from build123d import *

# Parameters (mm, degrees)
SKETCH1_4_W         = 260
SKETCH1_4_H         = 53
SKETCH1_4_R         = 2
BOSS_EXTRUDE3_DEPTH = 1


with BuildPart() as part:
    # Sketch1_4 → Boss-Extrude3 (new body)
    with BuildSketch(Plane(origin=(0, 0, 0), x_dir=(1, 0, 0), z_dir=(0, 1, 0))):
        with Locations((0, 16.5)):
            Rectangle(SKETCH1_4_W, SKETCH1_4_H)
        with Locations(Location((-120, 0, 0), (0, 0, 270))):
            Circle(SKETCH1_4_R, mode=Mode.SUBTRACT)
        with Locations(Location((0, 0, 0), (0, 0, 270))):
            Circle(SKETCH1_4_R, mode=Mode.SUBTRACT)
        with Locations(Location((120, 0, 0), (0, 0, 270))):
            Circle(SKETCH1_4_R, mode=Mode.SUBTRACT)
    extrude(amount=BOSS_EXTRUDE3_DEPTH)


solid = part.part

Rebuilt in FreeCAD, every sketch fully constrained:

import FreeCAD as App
import Part
import Sketcher
from FreeCAD import Vector


def add_polygon(sketch, points):
    """Adds a closed chain of lines whose ends are joined by coincident constraints."""
    first, n = sketch.GeometryCount, len(points)
    for a, b in zip(points, points[1:] + points[:1]):
        sketch.addGeometry(Part.LineSegment(App.Vector(*a, 0), App.Vector(*b, 0)), False)
    for i in range(n):
        sketch.addConstraint(Sketcher.Constraint("Coincident", first + i, 2, first + (i + 1) % n, 1))

doc = App.newDocument("Part")
params = doc.addObject("Spreadsheet::Sheet", "Params")
for row, (alias, value) in enumerate([
    ("sketch1_diameter", "4 mm"),
    ("sketch1_width", "260 mm"),
    ("sketch1_height", "53 mm"),
    ("pad1_length", "1 mm"),
], start=1):
    params.set(f"A{row}", alias)
    params.set(f"B{row}", "=" + value)
    params.setAlias(f"B{row}", alias)

body = doc.addObject("PartDesign::Body", "Body")

sketch1 = doc.addObject("Sketcher::SketchObject", "Sketch")
body.addObject(sketch1)
sketch1.AttachmentSupport = (doc.XZ_Plane, [""])
sketch1.MapMode = "FlatFace"
add_polygon(sketch1, [(-130, -43), (-130, 10), (130, 10), (130, -43)])
sketch1.addGeometry(Part.Circle(Vector(-120, 0, 0), Vector(0, 0, 1), 2), False)
sketch1.addGeometry(Part.Circle(Vector(0, 0, 0), Vector(0, 0, 1), 2), False)
sketch1.addGeometry(Part.Circle(Vector(120, 0, 0), Vector(0, 0, 1), 2), False)
sketch1.addConstraint(Sketcher.Constraint("Vertical", 0))
sketch1.addConstraint(Sketcher.Constraint("Horizontal", 1))
sketch1.addConstraint(Sketcher.Constraint("Vertical", 2))
sketch1.addConstraint(Sketcher.Constraint("Horizontal", 3))
sketch1.addConstraint(Sketcher.Constraint("Coincident", 5, 3, -1, 1))
sketch1.addConstraint(Sketcher.Constraint("Equal", 4, 5))
sketch1.addConstraint(Sketcher.Constraint("Equal", 5, 6))
sketch1.addConstraint(Sketcher.Constraint("Symmetric", 4, 3, 6, 3, -1, 1))
sketch1.addConstraint(Sketcher.Constraint("PointOnObject", 4, 3, -1))
sketch1.addConstraint(Sketcher.Constraint("Diameter", 4, 4.0))
sketch1.addConstraint(Sketcher.Constraint("DistanceX", 1, 1, 1, 2, 260.0))
sketch1.addConstraint(Sketcher.Constraint("DistanceY", 0, 1, 0, 2, 53.0))
sketch1.addConstraint(Sketcher.Constraint("DistanceX", 4, 3, -1, 1, 120.0))
sketch1.addConstraint(Sketcher.Constraint("DistanceX", 0, 2, -1, 1, 130.0))
sketch1.addConstraint(Sketcher.Constraint("DistanceY", -1, 1, 0, 2, 10.0))
sketch1.setExpression("Constraints[13]", "Params.sketch1_diameter")
sketch1.setExpression("Constraints[14]", "Params.sketch1_width")
sketch1.setExpression("Constraints[15]", "Params.sketch1_height")
pad1 = doc.addObject("PartDesign::Pad", "Pad")
body.addObject(pad1)
pad1.Profile = sketch1
pad1.setExpression("Length", "Params.pad1_length")
pad1.Reversed = True

doc.recompute()
